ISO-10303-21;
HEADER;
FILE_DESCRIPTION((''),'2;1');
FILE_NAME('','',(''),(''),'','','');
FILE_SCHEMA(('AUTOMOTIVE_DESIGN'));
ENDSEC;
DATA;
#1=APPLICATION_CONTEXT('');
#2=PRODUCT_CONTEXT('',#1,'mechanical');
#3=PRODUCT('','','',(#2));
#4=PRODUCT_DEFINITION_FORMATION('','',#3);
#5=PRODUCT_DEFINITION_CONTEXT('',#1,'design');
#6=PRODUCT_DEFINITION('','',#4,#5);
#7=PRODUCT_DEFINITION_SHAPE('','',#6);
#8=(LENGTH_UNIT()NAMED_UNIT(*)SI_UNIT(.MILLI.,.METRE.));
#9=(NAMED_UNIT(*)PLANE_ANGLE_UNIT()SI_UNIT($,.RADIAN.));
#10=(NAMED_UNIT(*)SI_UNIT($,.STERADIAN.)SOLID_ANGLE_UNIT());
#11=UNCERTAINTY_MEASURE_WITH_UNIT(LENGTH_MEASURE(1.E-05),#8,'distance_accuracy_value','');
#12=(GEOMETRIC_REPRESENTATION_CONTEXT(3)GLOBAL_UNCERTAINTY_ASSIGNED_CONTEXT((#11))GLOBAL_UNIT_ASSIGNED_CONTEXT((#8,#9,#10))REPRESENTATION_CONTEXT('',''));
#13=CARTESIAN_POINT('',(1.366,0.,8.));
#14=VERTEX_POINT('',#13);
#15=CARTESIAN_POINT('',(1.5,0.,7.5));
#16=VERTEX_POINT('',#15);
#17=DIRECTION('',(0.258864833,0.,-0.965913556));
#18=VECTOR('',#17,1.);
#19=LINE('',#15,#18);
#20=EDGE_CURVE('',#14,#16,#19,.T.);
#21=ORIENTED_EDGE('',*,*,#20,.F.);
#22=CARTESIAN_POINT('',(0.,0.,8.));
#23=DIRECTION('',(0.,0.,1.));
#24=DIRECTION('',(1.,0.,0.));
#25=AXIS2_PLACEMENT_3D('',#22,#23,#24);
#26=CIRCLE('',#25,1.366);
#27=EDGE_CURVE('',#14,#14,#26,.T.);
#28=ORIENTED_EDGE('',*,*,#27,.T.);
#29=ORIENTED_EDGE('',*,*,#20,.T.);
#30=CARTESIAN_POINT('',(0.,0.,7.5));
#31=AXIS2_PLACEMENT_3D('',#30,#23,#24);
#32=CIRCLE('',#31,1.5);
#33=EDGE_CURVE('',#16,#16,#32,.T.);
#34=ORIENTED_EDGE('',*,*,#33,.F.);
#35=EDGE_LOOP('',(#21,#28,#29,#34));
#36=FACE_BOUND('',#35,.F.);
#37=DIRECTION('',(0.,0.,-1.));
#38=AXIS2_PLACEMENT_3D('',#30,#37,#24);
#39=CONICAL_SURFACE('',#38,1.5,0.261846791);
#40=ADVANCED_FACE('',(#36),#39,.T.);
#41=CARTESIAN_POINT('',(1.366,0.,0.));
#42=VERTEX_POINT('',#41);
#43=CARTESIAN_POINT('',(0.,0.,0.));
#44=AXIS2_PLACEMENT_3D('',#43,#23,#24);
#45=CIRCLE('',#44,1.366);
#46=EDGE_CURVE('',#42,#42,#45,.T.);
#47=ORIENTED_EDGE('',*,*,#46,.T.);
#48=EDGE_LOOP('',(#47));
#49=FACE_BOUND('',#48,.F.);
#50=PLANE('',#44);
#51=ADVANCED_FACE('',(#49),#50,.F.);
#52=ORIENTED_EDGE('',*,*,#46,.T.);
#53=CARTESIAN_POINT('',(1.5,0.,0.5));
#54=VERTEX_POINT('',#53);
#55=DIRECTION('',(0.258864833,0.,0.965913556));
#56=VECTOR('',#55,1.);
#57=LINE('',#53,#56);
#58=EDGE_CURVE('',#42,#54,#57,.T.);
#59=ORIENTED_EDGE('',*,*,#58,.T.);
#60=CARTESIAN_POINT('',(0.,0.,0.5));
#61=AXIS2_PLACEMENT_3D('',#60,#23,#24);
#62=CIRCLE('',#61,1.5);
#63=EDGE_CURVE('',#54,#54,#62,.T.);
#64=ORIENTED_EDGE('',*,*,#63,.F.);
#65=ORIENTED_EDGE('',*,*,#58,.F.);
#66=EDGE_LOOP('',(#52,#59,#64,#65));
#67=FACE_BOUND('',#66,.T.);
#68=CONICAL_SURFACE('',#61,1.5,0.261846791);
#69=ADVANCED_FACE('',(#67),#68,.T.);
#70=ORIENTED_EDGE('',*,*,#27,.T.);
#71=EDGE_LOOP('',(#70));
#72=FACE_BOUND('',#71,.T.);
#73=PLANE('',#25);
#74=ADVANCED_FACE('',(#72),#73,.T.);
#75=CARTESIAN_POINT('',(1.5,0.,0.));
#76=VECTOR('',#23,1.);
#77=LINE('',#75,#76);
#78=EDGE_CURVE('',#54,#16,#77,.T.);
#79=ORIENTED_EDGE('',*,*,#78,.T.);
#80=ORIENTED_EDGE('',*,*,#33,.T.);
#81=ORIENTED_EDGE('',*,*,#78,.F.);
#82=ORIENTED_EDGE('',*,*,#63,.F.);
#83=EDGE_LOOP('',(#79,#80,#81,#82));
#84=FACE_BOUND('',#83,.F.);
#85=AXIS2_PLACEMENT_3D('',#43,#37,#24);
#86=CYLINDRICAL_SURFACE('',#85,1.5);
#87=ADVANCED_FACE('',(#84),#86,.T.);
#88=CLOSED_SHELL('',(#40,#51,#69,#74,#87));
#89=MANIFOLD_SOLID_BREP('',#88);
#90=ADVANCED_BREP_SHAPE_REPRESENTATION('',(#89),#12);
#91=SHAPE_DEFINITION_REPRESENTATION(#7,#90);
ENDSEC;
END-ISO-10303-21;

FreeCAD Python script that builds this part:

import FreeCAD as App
import Part
import Sketcher
from FreeCAD import Vector


def edges_at(feature, points):
    """Names of the edges that pass closest to the given points."""
    edges = feature.Shape.Edges
    near = lambda p: min(range(len(edges)), key=lambda i: edges[i].distToShape(Part.Vertex(*p))[0])
    return sorted({f"Edge{near(p) + 1}" for p in points})

doc = App.newDocument("Part")
body = doc.addObject("PartDesign::Body", "Body")

# Sketch on XY plane
sketch1 = body.newObject("Sketcher::SketchObject", "Sketch")
sketch1.AttachmentSupport = (doc.getObject("XY_Plane"), [""])
sketch1.MapMode = "FlatFace"
sketch1.addGeometry(Part.Circle(Vector(0, 0, 0), Vector(0, 0, 1), 1.5), False)
sketch1.addConstraint(Sketcher.Constraint("Coincident", 0, 3, -1, 1))
sketch1.addConstraint(Sketcher.Constraint("Diameter", 0, 3.0))
pad1 = body.newObject("PartDesign::Pad", "Pad")
pad1.Profile = sketch1
pad1.Length = 8
doc.recompute()

chamfer = body.newObject("PartDesign::Chamfer", "Chamfer")
chamfer.Base = (pad1, edges_at(pad1, [(-1.5, 0, 8)]))
chamfer.ChamferType = "Two distances"
chamfer.Size = 0.134
chamfer.Size2 = 0.5
chamfer.FlipDirection = True
doc.recompute()

chamfer2 = body.newObject("PartDesign::Chamfer", "Chamfer001")
chamfer2.Base = (chamfer, edges_at(chamfer, [(-1.5, 0, 0)]))
chamfer2.ChamferType = "Two distances"
chamfer2.Size = 0.134
chamfer2.Size2 = 0.5
chamfer2.FlipDirection = True

doc.recompute()
